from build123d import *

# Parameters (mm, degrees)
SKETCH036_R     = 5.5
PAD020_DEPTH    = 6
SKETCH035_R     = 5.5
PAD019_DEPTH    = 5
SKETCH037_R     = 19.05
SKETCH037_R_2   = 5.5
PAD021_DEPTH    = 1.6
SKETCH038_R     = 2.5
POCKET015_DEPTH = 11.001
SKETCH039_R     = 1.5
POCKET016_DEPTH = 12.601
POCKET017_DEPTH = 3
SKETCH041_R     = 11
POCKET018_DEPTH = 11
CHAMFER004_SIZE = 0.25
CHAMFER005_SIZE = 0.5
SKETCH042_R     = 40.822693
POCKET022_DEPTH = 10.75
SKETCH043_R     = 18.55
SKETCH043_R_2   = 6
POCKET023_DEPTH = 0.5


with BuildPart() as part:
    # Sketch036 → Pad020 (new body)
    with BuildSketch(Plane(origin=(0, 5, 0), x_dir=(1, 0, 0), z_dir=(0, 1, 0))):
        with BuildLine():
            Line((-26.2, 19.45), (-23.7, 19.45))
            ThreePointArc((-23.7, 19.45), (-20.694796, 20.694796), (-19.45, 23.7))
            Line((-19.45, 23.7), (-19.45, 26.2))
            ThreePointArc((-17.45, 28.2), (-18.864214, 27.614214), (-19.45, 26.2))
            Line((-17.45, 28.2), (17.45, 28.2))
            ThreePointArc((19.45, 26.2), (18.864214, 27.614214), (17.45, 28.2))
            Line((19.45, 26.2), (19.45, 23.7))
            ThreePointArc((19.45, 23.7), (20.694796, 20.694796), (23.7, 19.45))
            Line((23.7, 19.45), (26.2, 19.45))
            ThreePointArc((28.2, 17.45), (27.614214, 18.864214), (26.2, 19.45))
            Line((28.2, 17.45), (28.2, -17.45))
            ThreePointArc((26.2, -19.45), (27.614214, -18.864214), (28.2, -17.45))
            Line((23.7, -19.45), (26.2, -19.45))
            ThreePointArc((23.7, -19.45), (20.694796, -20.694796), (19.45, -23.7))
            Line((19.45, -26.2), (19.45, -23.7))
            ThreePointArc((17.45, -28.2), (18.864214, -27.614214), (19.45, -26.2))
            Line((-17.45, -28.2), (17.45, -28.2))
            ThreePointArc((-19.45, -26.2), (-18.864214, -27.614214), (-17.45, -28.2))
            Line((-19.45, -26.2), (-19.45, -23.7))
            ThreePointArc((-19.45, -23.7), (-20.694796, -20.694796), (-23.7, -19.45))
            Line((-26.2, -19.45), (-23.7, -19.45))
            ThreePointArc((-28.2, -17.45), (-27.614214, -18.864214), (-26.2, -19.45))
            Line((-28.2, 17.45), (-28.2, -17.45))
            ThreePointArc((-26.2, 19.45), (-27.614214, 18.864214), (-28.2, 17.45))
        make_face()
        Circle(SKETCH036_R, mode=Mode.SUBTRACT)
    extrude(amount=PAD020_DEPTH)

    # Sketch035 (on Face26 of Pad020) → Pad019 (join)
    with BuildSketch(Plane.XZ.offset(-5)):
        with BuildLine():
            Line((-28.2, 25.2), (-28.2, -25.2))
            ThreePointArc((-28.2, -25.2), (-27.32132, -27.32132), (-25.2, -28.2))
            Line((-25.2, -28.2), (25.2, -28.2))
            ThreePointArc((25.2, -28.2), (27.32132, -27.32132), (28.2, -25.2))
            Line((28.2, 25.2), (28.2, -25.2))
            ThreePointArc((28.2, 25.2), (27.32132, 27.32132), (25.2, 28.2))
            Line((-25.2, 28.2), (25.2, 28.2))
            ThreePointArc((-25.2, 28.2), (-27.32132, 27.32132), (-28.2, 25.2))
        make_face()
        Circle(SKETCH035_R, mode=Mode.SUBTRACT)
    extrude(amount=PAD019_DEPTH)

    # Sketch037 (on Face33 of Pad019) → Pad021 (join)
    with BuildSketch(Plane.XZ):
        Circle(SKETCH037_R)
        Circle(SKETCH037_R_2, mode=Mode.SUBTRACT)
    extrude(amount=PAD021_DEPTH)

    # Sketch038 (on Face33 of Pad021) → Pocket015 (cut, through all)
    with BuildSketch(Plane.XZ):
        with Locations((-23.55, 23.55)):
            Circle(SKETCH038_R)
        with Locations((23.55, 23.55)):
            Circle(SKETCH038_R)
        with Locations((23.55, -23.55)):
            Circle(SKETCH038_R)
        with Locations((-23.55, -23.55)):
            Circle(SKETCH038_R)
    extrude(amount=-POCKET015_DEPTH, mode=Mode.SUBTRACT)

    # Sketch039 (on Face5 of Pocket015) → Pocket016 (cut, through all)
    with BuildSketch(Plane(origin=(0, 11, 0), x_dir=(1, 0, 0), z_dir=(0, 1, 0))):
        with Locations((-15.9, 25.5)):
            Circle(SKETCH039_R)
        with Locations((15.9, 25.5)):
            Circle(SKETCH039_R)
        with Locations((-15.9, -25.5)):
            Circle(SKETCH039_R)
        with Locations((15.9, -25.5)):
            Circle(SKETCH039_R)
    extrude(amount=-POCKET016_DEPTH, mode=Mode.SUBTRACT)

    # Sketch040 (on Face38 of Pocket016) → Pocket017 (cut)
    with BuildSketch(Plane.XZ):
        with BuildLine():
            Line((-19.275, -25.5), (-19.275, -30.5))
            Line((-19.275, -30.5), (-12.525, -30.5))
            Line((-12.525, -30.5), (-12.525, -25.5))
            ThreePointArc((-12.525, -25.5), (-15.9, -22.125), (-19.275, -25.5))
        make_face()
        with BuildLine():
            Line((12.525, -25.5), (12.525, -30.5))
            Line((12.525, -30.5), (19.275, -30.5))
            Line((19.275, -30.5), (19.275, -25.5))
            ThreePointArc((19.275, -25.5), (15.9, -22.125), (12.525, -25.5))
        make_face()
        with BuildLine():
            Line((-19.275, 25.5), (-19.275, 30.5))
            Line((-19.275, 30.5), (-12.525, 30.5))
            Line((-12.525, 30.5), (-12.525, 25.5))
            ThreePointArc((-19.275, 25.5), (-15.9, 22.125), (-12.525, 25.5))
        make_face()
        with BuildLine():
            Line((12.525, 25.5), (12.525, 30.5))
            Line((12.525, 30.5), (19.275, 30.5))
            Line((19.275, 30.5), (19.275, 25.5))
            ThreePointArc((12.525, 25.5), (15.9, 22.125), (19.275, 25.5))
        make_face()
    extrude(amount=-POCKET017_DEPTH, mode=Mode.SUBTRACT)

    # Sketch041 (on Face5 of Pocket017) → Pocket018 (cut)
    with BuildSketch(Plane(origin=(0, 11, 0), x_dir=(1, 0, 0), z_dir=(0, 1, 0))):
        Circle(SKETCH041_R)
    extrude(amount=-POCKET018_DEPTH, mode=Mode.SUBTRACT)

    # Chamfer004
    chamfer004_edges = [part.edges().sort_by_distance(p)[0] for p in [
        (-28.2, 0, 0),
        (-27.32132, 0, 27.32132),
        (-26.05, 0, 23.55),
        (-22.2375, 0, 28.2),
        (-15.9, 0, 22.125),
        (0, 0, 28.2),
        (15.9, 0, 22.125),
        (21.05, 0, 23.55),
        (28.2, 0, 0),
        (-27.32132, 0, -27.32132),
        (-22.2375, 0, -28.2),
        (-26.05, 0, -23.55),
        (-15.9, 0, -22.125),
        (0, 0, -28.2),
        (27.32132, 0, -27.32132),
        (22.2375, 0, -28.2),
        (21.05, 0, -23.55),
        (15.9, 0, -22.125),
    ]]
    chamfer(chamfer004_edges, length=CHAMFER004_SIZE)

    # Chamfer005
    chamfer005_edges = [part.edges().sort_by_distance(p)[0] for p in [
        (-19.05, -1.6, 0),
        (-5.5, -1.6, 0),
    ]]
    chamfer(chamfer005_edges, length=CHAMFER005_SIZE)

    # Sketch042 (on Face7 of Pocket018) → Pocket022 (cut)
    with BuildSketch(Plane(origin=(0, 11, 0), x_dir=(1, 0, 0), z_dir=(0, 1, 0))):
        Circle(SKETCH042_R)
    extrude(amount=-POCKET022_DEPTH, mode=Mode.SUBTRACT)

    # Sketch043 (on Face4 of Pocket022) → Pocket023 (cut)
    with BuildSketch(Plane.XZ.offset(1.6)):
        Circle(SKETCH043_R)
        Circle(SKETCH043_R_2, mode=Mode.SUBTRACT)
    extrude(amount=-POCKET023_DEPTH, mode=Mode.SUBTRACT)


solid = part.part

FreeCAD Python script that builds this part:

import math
import FreeCAD as App
import Part
import Sketcher
from FreeCAD import Vector
Q = App.Units.Quantity


def edges_at(feature, points):
    """Names of the edges that pass closest to the given points."""
    edges = feature.Shape.Edges
    near = lambda p: min(range(len(edges)), key=lambda i: edges[i].distToShape(Part.Vertex(*p))[0])
    return sorted({f"Edge{near(p) + 1}" for p in points})

doc = App.newDocument("Part")
body = doc.addObject("PartDesign::Body", "Body")

# Sketch on XZ plane
sketch1 = body.newObject("Sketcher::SketchObject", "Sketch")
sketch1.AttachmentSupport = (doc.getObject("XZ_Plane"), [""])
sketch1.MapMode = "FlatFace"
sketch1.AttachmentOffset = App.Placement(Vector(0, 0, -5), App.Rotation())
sketch1.addGeometry([
    Part.LineSegment(Vector(-23.7, -19.4, 0), Vector(-26.2, -19.4, 0)),  # 0
    Part.ArcOfCircle(Part.Circle(Vector(-26.2, -17.5, 0), Vector(0, 0, 1), 2), math.radians(180), math.radians(270)),  # 1
    Part.LineSegment(Vector(-28.2, -17.4, 0), Vector(-28.2, 17.4, 0)),  # 2
    Part.ArcOfCircle(Part.Circle(Vector(-26.2, 17.5, 0), Vector(0, 0, 1), 2), math.radians(90), math.radians(180)),  # 3
    Part.LineSegment(Vector(-26.2, 19.4, 0), Vector(-23.7, 19.4, 0)),  # 4
    Part.ArcOfCircle(Part.Circle(Vector(-23.7, 23.7, 0), Vector(0, 0, 1), 4.2), math.radians(-90), math.radians(0)),  # 5
    Part.LineSegment(Vector(-19.4, 23.7, 0), Vector(-19.4, 26.2, 0)),  # 6
    Part.ArcOfCircle(Part.Circle(Vector(-17.5, 26.2, 0), Vector(0, 0, 1), 2), math.radians(90), math.radians(180)),  # 7
    Part.LineSegment(Vector(-17.4, 28.2, 0), Vector(17.4, 28.2, 0)),  # 8
    Part.ArcOfCircle(Part.Circle(Vector(17.5, 26.2, 0), Vector(0, 0, 1), 2), math.radians(0), math.radians(90)),  # 9
    Part.LineSegment(Vector(19.4, 26.2, 0), Vector(19.4, 23.7, 0)),  # 10
    Part.ArcOfCircle(Part.Circle(Vector(23.7, 23.7, 0), Vector(0, 0, 1), 4.2), math.radians(180), math.radians(270)),  # 11
    Part.LineSegment(Vector(23.7, 19.4, 0), Vector(26.2, 19.4, 0)),  # 12
    Part.ArcOfCircle(Part.Circle(Vector(26.2, 17.5, 0), Vector(0, 0, 1), 2), math.radians(0), math.radians(90)),  # 13
    Part.LineSegment(Vector(28.2, 17.4, 0), Vector(28.2, -17.4, 0)),  # 14
    Part.ArcOfCircle(Part.Circle(Vector(26.2, -17.5, 0), Vector(0, 0, 1), 2), math.radians(-90), math.radians(0)),  # 15
    Part.LineSegment(Vector(26.2, -19.4, 0), Vector(23.7, -19.4, 0)),  # 16
    Part.ArcOfCircle(Part.Circle(Vector(23.7, -23.7, 0), Vector(0, 0, 1), 4.2), math.radians(90), math.radians(180)),  # 17
    Part.LineSegment(Vector(19.4, -23.7, 0), Vector(19.4, -26.2, 0)),  # 18
    Part.ArcOfCircle(Part.Circle(Vector(17.5, -26.2, 0), Vector(0, 0, 1), 2), math.radians(-90), math.radians(0)),  # 19
    Part.LineSegment(Vector(17.4, -28.2, 0), Vector(-17.4, -28.2, 0)),  # 20
    Part.ArcOfCircle(Part.Circle(Vector(-17.5, -26.2, 0), Vector(0, 0, 1), 2), math.radians(180), math.radians(270)),  # 21
    Part.LineSegment(Vector(-19.4, -26.2, 0), Vector(-19.4, -23.7, 0)),  # 22
    Part.ArcOfCircle(Part.Circle(Vector(-23.7, -23.7, 0), Vector(0, 0, 1), 4.2), math.radians(0), math.radians(90)),  # 23
    Part.Circle(Vector(0, 0, 0), Vector(0, 0, 1), 5.5),  # 24
], False)
sketch1.addConstraint([
    Sketcher.Constraint("Tangent", 0, 2, 1, 2),
    Sketcher.Constraint("Tangent", 1, 1, 2, 1),
    Sketcher.Constraint("Tangent", 2, 2, 3, 2),
    Sketcher.Constraint("Tangent", 3, 1, 4, 1),
    Sketcher.Constraint("Tangent", 4, 2, 5, 1),
    Sketcher.Constraint("Tangent", 5, 2, 6, 1),
    Sketcher.Constraint("Tangent", 6, 2, 7, 2),
    Sketcher.Constraint("Tangent", 7, 1, 8, 1),
    Sketcher.Constraint("Tangent", 8, 2, 9, 2),
    Sketcher.Constraint("Tangent", 9, 1, 10, 1),
    Sketcher.Constraint("Tangent", 10, 2, 11, 1),
    Sketcher.Constraint("Tangent", 11, 2, 12, 1),
    Sketcher.Constraint("Tangent", 12, 2, 13, 2),
    Sketcher.Constraint("Tangent", 13, 1, 14, 1),
    Sketcher.Constraint("Tangent", 14, 2, 15, 2),
    Sketcher.Constraint("Tangent", 15, 1, 16, 1),
    Sketcher.Constraint("Tangent", 16, 2, 17, 1),
    Sketcher.Constraint("Tangent", 17, 2, 18, 1),
    Sketcher.Constraint("Tangent", 18, 2, 19, 2),
    Sketcher.Constraint("Tangent", 19, 1, 20, 1),
    Sketcher.Constraint("Tangent", 20, 2, 21, 2),
    Sketcher.Constraint("Tangent", 21, 1, 22, 1),
    Sketcher.Constraint("Tangent", 22, 2, 23, 1),
    Sketcher.Constraint("Tangent", 23, 2, 0, 1),
    Sketcher.Constraint("Horizontal", 0),
    Sketcher.Constraint("Vertical", 2),
    Sketcher.Constraint("Horizontal", 4),
    Sketcher.Constraint("Vertical", 6),
    Sketcher.Constraint("Horizontal", 8),
    Sketcher.Constraint("Vertical", 10),
    Sketcher.Constraint("Horizontal", 12),
    Sketcher.Constraint("Vertical", 14),
    Sketcher.Constraint("Horizontal", 16),
    Sketcher.Constraint("Vertical", 18),
    Sketcher.Constraint("Horizontal", 20),
    Sketcher.Constraint("Vertical", 22),
    Sketcher.Constraint("Coincident", 24, 3, -1, 1),
    Sketcher.Constraint("Equal", 1, 3),
    Sketcher.Constraint("Equal", 3, 7),
    Sketcher.Constraint("Equal", 7, 9),
    Sketcher.Constraint("Equal", 5, 11),
    Sketcher.Constraint("Equal", 9, 13),
    Sketcher.Constraint("Equal", 13, 15),
    Sketcher.Constraint("Equal", 11, 17),
    Sketcher.Constraint("Equal", 15, 19),
    Sketcher.Constraint("Equal", 19, 21),
    Sketcher.Constraint("Equal", 17, 23),
    Sketcher.Constraint("Symmetric", 1, 3, 13, 3, -1, 1),
    Sketcher.Constraint("Symmetric", 5, 3, 17, 3, -1, 1),
    Sketcher.Constraint("Symmetric", 9, 3, 21, 3, -1, 1),
    Sketcher.Constraint("Symmetric", 5, 3, 11, 3, -2),
    Sketcher.Constraint("Equal", 20, 2),
    Sketcher.Constraint("Equal", 16, 6),
    Sketcher.Constraint("Diameter", 24, Q("11 mm")),
    Sketcher.Constraint("Radius", 1, Q("1.999999 mm")),
    Sketcher.Constraint("Radius", 5, Q("4.249999 mm")),
    Sketcher.Constraint("DistanceX", 0, 2, 0, 1, Q("2.5 mm")),
    Sketcher.Constraint("DistanceX", 8, 1, 8, 2, Q("34.9 mm")),
])
pad1 = body.newObject("PartDesign::Pad", "Pad")
pad1.Profile = sketch1
pad1.Length = 6
pad1.Reversed = True

# Sketch on XZ plane
sketch2 = body.newObject("Sketcher::SketchObject", "Sketch001")
sketch2.AttachmentSupport = (doc.getObject("XZ_Plane"), [""])
sketch2.MapMode = "FlatFace"
sketch2.AttachmentOffset = App.Placement(Vector(0, 0, -5), App.Rotation())
sketch2.addGeometry([
    Part.LineSegment(Vector(-28.2, 25.2, 0), Vector(-28.2, -25.2, 0)),  # 0
    Part.ArcOfCircle(Part.Circle(Vector(-25.2, -25.2, 0), Vector(0, 0, 1), 3), math.radians(-180), math.radians(-90)),  # 1
    Part.LineSegment(Vector(-25.2, -28.2, 0), Vector(25.2, -28.2, 0)),  # 2
    Part.ArcOfCircle(Part.Circle(Vector(25.2, -25.2, 0), Vector(0, 0, 1), 3), math.radians(-90), math.radians(0)),  # 3
    Part.LineSegment(Vector(28.2, -25.2, 0), Vector(28.2, 25.2, 0)),  # 4
    Part.ArcOfCircle(Part.Circle(Vector(25.2, 25.2, 0), Vector(0, 0, 1), 3), math.radians(0), math.radians(90)),  # 5
    Part.LineSegment(Vector(25.2, 28.2, 0), Vector(-25.2, 28.2, 0)),  # 6
    Part.ArcOfCircle(Part.Circle(Vector(-25.2, 25.2, 0), Vector(0, 0, 1), 3), math.radians(90), math.radians(180)),  # 7
    Part.Circle(Vector(0, 0, 0), Vector(0, 0, 1), 5.5),  # 8
], False)
sketch2.addConstraint([
    Sketcher.Constraint("Tangent", 0, 2, 1, 1),
    Sketcher.Constraint("Tangent", 1, 2, 2, 1),
    Sketcher.Constraint("Tangent", 2, 2, 3, 1),
    Sketcher.Constraint("Tangent", 3, 2, 4, 1),
    Sketcher.Constraint("Tangent", 4, 2, 5, 1),
    Sketcher.Constraint("Tangent", 5, 2, 6, 1),
    Sketcher.Constraint("Tangent", 6, 2, 7, 1),
    Sketcher.Constraint("Tangent", 7, 2, 0, 1),
    Sketcher.Constraint("Vertical", 0),
    Sketcher.Constraint("Horizontal", 2),
    Sketcher.Constraint("Vertical", 4),
    Sketcher.Constraint("Horizontal", 6),
    Sketcher.Constraint("Coincident", 8, 3, -1, 1),
    Sketcher.Constraint("Equal", 1, 3),
    Sketcher.Constraint("Equal", 3, 5),
    Sketcher.Constraint("Equal", 5, 7),
    Sketcher.Constraint("Symmetric", 1, 3, 5, 3, -1, 1),
    Sketcher.Constraint("Equal", 6, 0),
    Sketcher.Constraint("Diameter", 8, Q("11 mm")),
    Sketcher.Constraint("Radius", 1, Q("3.000001 mm")),
    Sketcher.Constraint("DistanceX", 2, 1, 2, 2, Q("50.4 mm")),
])
pad2 = body.newObject("PartDesign::Pad", "Pad001")
pad2.Profile = sketch2
pad2.Length = 5

# Sketch on XZ plane
sketch3 = body.newObject("Sketcher::SketchObject", "Sketch002")
sketch3.AttachmentSupport = (doc.getObject("XZ_Plane"), [""])
sketch3.MapMode = "FlatFace"
sketch3.addGeometry([
    Part.Circle(Vector(0, 0, 0), Vector(0, 0, 1), 19),
    Part.Circle(Vector(0, 0, 0), Vector(0, 0, 1), 6),
], False)
sketch3.addConstraint([
    Sketcher.Constraint("Coincident", 0, 3, -1, 1),
    Sketcher.Constraint("Coincident", 1, 3, -1, 1),
    Sketcher.Constraint("Diameter", 1, Q("11 mm")),
    Sketcher.Constraint("Diameter", 0, Q("38.1 mm")),
])
pad3 = body.newObject("PartDesign::Pad", "Pad002")
pad3.Profile = sketch3
pad3.Length = 1.6

# Sketch on XZ plane
sketch4 = body.newObject("Sketcher::SketchObject", "Sketch003")
sketch4.AttachmentSupport = (doc.getObject("XZ_Plane"), [""])
sketch4.MapMode = "FlatFace"
sketch4.addGeometry([
    Part.Circle(Vector(-23.6, 23.6, 0), Vector(0, 0, 1), 2.5),
    Part.Circle(Vector(23.6, 23.6, 0), Vector(0, 0, 1), 2.5),
    Part.Circle(Vector(23.6, -23.6, 0), Vector(0, 0, 1), 2.5),
    Part.Circle(Vector(-23.6, -23.6, 0), Vector(0, 0, 1), 2.5),
], False)
sketch4.addConstraint([
    Sketcher.Constraint("Equal", 0, 1),
    Sketcher.Constraint("Equal", 1, 2),
    Sketcher.Constraint("Equal", 2, 3),
    Sketcher.Constraint("Symmetric", 0, 3, 2, 3, -1, 1),
    Sketcher.Constraint("Symmetric", 1, 3, 3, 3, -1, 1),
    Sketcher.Constraint("Symmetric", 0, 3, 1, 3, -2),
    Sketcher.Constraint("Diameter", 0, Q("5 mm")),
    Sketcher.Constraint("DistanceX", 0, 3, 1, 3, Q("47.1 mm")),
    Sketcher.Constraint("DistanceY", 2, 3, 1, 3, Q("47.1 mm")),
])
pocket1 = body.newObject("PartDesign::Pocket", "Pocket")
pocket1.Profile = sketch4
pocket1.Type = "ThroughAll"

# Sketch on XZ plane
sketch5 = body.newObject("Sketcher::SketchObject", "Sketch004")
sketch5.AttachmentSupport = (doc.getObject("XZ_Plane"), [""])
sketch5.MapMode = "FlatFace"
sketch5.AttachmentOffset = App.Placement(Vector(0, 0, -11), App.Rotation())
sketch5.addGeometry([
    Part.Circle(Vector(-15.9, -25.5, 0), Vector(0, 0, 1), 1.5),
    Part.Circle(Vector(15.9, -25.5, 0), Vector(0, 0, 1), 1.5),
    Part.Circle(Vector(-15.9, 25.5, 0), Vector(0, 0, 1), 1.5),
    Part.Circle(Vector(15.9, 25.5, 0), Vector(0, 0, 1), 1.5),
], False)
sketch5.addConstraint([
    Sketcher.Constraint("Equal", 0, 1),
    Sketcher.Constraint("Equal", 1, 2),
    Sketcher.Constraint("Equal", 2, 3),
    Sketcher.Constraint("Symmetric", 1, 3, 2, 3, -1, 1),
    Sketcher.Constraint("Symmetric", 0, 3, 3, 3, -1, 1),
    Sketcher.Constraint("Symmetric", 0, 3, 1, 3, -2),
    Sketcher.Constraint("Diameter", 0, Q("3 mm")),
    Sketcher.Constraint("DistanceY", 0, 3, 2, 3, Q("51 mm")),
    Sketcher.Constraint("DistanceX", 0, 3, -1, 1, Q("15.9 mm")),
])
pocket2 = body.newObject("PartDesign::Pocket", "Pocket001")
pocket2.Profile = sketch5
pocket2.Type = "ThroughAll"
pocket2.Reversed = True

# Sketch on XZ plane
sketch6 = body.newObject("Sketcher::SketchObject", "Sketch005")
sketch6.AttachmentSupport = (doc.getObject("XZ_Plane"), [""])
sketch6.MapMode = "FlatFace"
sketch6.addGeometry([
    Part.LineSegment(Vector(-19.3, -25.5, 0), Vector(-19.3, -30.5, 0)),  # 0
    Part.LineSegment(Vector(-19.3, -30.5, 0), Vector(-12.5, -30.5, 0)),  # 1
    Part.LineSegment(Vector(-12.5, -30.5, 0), Vector(-12.5, -25.5, 0)),  # 2
    Part.ArcOfCircle(Part.Circle(Vector(-15.9, -25.5, 0), Vector(0, 0, 1), 3.4), math.radians(0), math.radians(180)),  # 3
    Part.LineSegment(Vector(12.5, -25.5, 0), Vector(12.5, -30.5, 0)),  # 4
    Part.LineSegment(Vector(12.5, -30.5, 0), Vector(19.3, -30.5, 0)),  # 5
    Part.LineSegment(Vector(19.3, -30.5, 0), Vector(19.3, -25.5, 0)),  # 6
    Part.ArcOfCircle(Part.Circle(Vector(15.9, -25.5, 0), Vector(0, 0, 1), 3.4), math.radians(0), math.radians(180)),  # 7
    Part.LineSegment(Vector(-19.3, 30.5, 0), Vector(-19.3, 25.5, 0)),  # 8
    Part.ArcOfCircle(Part.Circle(Vector(-15.9, 25.5, 0), Vector(0, 0, 1), 3.4), math.radians(180), math.radians(360)),  # 9
    Part.LineSegment(Vector(-12.5, 25.5, 0), Vector(-12.5, 30.5, 0)),  # 10
    Part.LineSegment(Vector(-12.5, 30.5, 0), Vector(-19.3, 30.5, 0)),  # 11
    Part.LineSegment(Vector(12.5, 30.5, 0), Vector(12.5, 25.5, 0)),  # 12
    Part.ArcOfCircle(Part.Circle(Vector(15.9, 25.5, 0), Vector(0, 0, 1), 3.4), math.radians(180), math.radians(360)),  # 13
    Part.LineSegment(Vector(19.3, 25.5, 0), Vector(19.3, 30.5, 0)),  # 14
    Part.LineSegment(Vector(19.3, 30.5, 0), Vector(12.5, 30.5, 0)),  # 15
], False)
sketch6.addConstraint([
    Sketcher.Constraint("Coincident", 0, 2, 1, 1),
    Sketcher.Constraint("Coincident", 1, 2, 2, 1),
    Sketcher.Constraint("Tangent", 2, 2, 3, 1),
    Sketcher.Constraint("Tangent", 3, 2, 0, 1),
    Sketcher.Constraint("Coincident", 4, 2, 5, 1),
    Sketcher.Constraint("Coincident", 5, 2, 6, 1),
    Sketcher.Constraint("Tangent", 6, 2, 7, 1),
    Sketcher.Constraint("Tangent", 7, 2, 4, 1),
    Sketcher.Constraint("Tangent", 8, 2, 9, 1),
    Sketcher.Constraint("Tangent", 9, 2, 10, 1),
    Sketcher.Constraint("Coincident", 10, 2, 11, 1),
    Sketcher.Constraint("Coincident", 11, 2, 8, 1),
    Sketcher.Constraint("Tangent", 12, 2, 13, 1),
    Sketcher.Constraint("Tangent", 13, 2, 14, 1),
    Sketcher.Constraint("Coincident", 14, 2, 15, 1),
    Sketcher.Constraint("Coincident", 15, 2, 12, 1),
    Sketcher.Constraint("Vertical", 0),
    Sketcher.Constraint("Horizontal", 1),
    Sketcher.Constraint("Vertical", 2),
    Sketcher.Constraint("Vertical", 4),
    Sketcher.Constraint("Horizontal", 5),
    Sketcher.Constraint("Vertical", 6),
    Sketcher.Constraint("Vertical", 8),
    Sketcher.Constraint("Vertical", 10),
    Sketcher.Constraint("Horizontal", 11),
    Sketcher.Constraint("Vertical", 12),
    Sketcher.Constraint("Vertical", 14),
    Sketcher.Constraint("Horizontal", 15),
    Sketcher.Constraint("Equal", 3, 7),
    Sketcher.Constraint("Equal", 7, 9),
    Sketcher.Constraint("Equal", 9, 13),
    Sketcher.Constraint("Symmetric", 7, 3, 9, 3, -1, 1),
    Sketcher.Constraint("Symmetric", 3, 3, 13, 3, -1, 1),
    Sketcher.Constraint("Symmetric", 3, 3, 7, 3, -2),
    Sketcher.Constraint("Horizontal", 1, 2, 4, 2),
    Sketcher.Constraint("Horizontal", 11, 2, 14, 2),
    Sketcher.Constraint("Equal", 6, 8),
    Sketcher.Constraint("DistanceY", 0, 2, 0, 1, Q("5 mm")),
    Sketcher.Constraint("Radius", 3, Q("3.375 mm")),
    Sketcher.Constraint("DistanceY", 3, 3, 9, 3, Q("51 mm")),
    Sketcher.Constraint("DistanceX", 3, 3, -1, 1, Q("15.9 mm")),
])
pocket3 = body.newObject("PartDesign::Pocket", "Pocket002")
pocket3.Profile = sketch6
pocket3.Length = 3

# Sketch on XZ plane
sketch7 = body.newObject("Sketcher::SketchObject", "Sketch006")
sketch7.AttachmentSupport = (doc.getObject("XZ_Plane"), [""])
sketch7.MapMode = "FlatFace"
sketch7.AttachmentOffset = App.Placement(Vector(0, 0, -11), App.Rotation())
sketch7.addGeometry(Part.Circle(Vector(0, 0, 0), Vector(0, 0, 1), 11), False)
sketch7.addConstraint([
    Sketcher.Constraint("Coincident", 0, 3, -1, 1),
    Sketcher.Constraint("Diameter", 0, Q("22 mm")),
])
pocket4 = body.newObject("PartDesign::Pocket", "Pocket003")
pocket4.Profile = sketch7
pocket4.Length = 11
pocket4.Reversed = True
doc.recompute()

chamfer = body.newObject("PartDesign::Chamfer", "Chamfer")
chamfer.Base = (pocket4, edges_at(pocket4, [
    (-28.2, 0, 0),
    (-27.321, 0, 27.321),
    (-26.05, 0, 23.55),
    (-22.238, 0, 28.2),
    (-15.9, 0, 22.125),
    (0, 0, 28.2),
    (15.9, 0, 22.125),
    (21.05, 0, 23.55),
    (28.2, 0, 0),
    (-27.321, 0, -27.321),
    (-22.238, 0, -28.2),
    (-26.05, 0, -23.55),
    (-15.9, 0, -22.125),
    (0, 0, -28.2),
    (27.321, 0, -27.321),
    (22.238, 0, -28.2),
    (21.05, 0, -23.55),
    (15.9, 0, -22.125),
]))
chamfer.Size = 0.25
doc.recompute()

chamfer2 = body.newObject("PartDesign::Chamfer", "Chamfer001")
chamfer2.Base = (chamfer, edges_at(chamfer, [(-19.05, -1.6, 0), (-5.5, -1.6, 0)]))
chamfer2.Size = 0.5

# Sketch on XZ plane
sketch8 = body.newObject("Sketcher::SketchObject", "Sketch007")
sketch8.AttachmentSupport = (doc.getObject("XZ_Plane"), [""])
sketch8.MapMode = "FlatFace"
sketch8.AttachmentOffset = App.Placement(Vector(0, 0, -11), App.Rotation())
sketch8.addGeometry(Part.Circle(Vector(0, 0, 0), Vector(0, 0, 1), 41), False)
sketch8.addConstraint([
    Sketcher.Constraint("Coincident", 0, 3, -1, 1),
    Sketcher.Constraint("Diameter", 0, Q("81.645386 mm")),
])
pocket5 = body.newObject("PartDesign::Pocket", "Pocket004")
pocket5.Profile = sketch8
pocket5.Length = 10.75
pocket5.Reversed = True

# Sketch on XZ plane
sketch9 = body.newObject("Sketcher::SketchObject", "Sketch008")
sketch9.AttachmentSupport = (doc.getObject("XZ_Plane"), [""])
sketch9.MapMode = "FlatFace"
sketch9.AttachmentOffset = App.Placement(Vector(0, 0, 1.6), App.Rotation())
sketch9.addGeometry([
    Part.Circle(Vector(0, 0, 0), Vector(0, 0, 1), 19),
    Part.Circle(Vector(0, 0, 0), Vector(0, 0, 1), 6),
], False)
sketch9.addConstraint([
    Sketcher.Constraint("Coincident", 0, 3, -1, 1),
    Sketcher.Constraint("Coincident", 1, 3, -1, 1),
    Sketcher.Constraint("Diameter", 1, Q("12 mm")),
    Sketcher.Constraint("Diameter", 0, Q("37.1 mm")),
])
pocket6 = body.newObject("PartDesign::Pocket", "Pocket005")
pocket6.Profile = sketch9
pocket6.Length = 0.5

doc.recompute()
